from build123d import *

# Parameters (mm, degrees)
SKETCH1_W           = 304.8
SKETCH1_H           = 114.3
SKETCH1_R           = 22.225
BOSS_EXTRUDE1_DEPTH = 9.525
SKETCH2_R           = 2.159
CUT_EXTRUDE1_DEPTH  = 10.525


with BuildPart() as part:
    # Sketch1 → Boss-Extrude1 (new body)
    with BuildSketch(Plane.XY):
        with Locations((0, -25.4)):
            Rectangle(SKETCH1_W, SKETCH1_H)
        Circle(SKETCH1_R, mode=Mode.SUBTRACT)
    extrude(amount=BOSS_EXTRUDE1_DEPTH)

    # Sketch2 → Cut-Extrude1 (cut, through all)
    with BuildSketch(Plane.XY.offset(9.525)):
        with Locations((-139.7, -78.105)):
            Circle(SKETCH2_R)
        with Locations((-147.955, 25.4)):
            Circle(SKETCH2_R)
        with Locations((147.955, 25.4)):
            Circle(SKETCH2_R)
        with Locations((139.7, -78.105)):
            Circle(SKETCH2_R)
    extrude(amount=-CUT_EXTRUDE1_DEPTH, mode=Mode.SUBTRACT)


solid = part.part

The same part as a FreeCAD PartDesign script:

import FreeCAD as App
import Part
import Sketcher
from FreeCAD import Vector
Q = App.Units.Quantity

doc = App.newDocument("Part")
body = doc.addObject("PartDesign::Body", "Body")

sketch1 = doc.addObject("Sketcher::SketchObject", "Sketch")
body.addObject(sketch1)
sketch1.AttachmentSupport = (doc.XY_Plane, [""])
sketch1.MapMode = "FlatFace"
sketch1.addGeometry(Part.LineSegment(Vector(-152, 32, 0), Vector(-152, -83, 0)), False)
sketch1.addGeometry(Part.LineSegment(Vector(-152, -83, 0), Vector(152, -83, 0)), False)
sketch1.addGeometry(Part.LineSegment(Vector(152, -83, 0), Vector(152, 32, 0)), False)
sketch1.addGeometry(Part.LineSegment(Vector(152, 32, 0), Vector(-152, 32, 0)), False)
sketch1.addGeometry(Part.Circle(Vector(0, 0, 0), Vector(0, 0, 1), 22), False)
sketch1.addConstraint(Sketcher.Constraint("Coincident", 0, 2, 1, 1))
sketch1.addConstraint(Sketcher.Constraint("Coincident", 1, 2, 2, 1))
sketch1.addConstraint(Sketcher.Constraint("Coincident", 2, 2, 3, 1))
sketch1.addConstraint(Sketcher.Constraint("Coincident", 3, 2, 0, 1))
sketch1.addConstraint(Sketcher.Constraint("Vertical", 0))
sketch1.addConstraint(Sketcher.Constraint("Horizontal", 1))
sketch1.addConstraint(Sketcher.Constraint("Vertical", 2))
sketch1.addConstraint(Sketcher.Constraint("Horizontal", 3))
sketch1.addConstraint(Sketcher.Constraint("Coincident", 4, 3, -1, 1))
sketch1.addConstraint(Sketcher.Constraint("Diameter", 4, Q("1.75 in")))
sketch1.addConstraint(Sketcher.Constraint("DistanceX", 1, 1, 1, 2, Q("12 in")))
sketch1.addConstraint(Sketcher.Constraint("DistanceY", 0, 2, 0, 1, Q("4.5 in")))
sketch1.addConstraint(Sketcher.Constraint("DistanceX", 0, 2, -1, 1, Q("6 in")))
sketch1.addConstraint(Sketcher.Constraint("DistanceY", 0, 2, -1, 1, Q("3.25 in")))
pad1 = doc.addObject("PartDesign::Pad", "Pad")
body.addObject(pad1)
pad1.Profile = sketch1
pad1.Length = Q("0.375 in")

sketch2 = doc.addObject("Sketcher::SketchObject", "Sketch001")
body.addObject(sketch2)
sketch2.AttachmentSupport = (doc.XY_Plane, [""])
sketch2.MapMode = "FlatFace"
sketch2.AttachmentOffset = App.Placement(Vector(0, 0, 0.375 * 25.4), App.Rotation())
sketch2.addGeometry(Part.Circle(Vector(-139.7, -78.1, 0), Vector(0, 0, 1), 2.2), False)
sketch2.addGeometry(Part.Circle(Vector(-148, 25.4, 0), Vector(0, 0, 1), 2.2), False)
sketch2.addGeometry(Part.Circle(Vector(148, 25.4, 0), Vector(0, 0, 1), 2.2), False)
sketch2.addGeometry(Part.Circle(Vector(139.7, -78.1, 0), Vector(0, 0, 1), 2.2), False)
sketch2.addConstraint(Sketcher.Constraint("Equal", 0, 1))
sketch2.addConstraint(Sketcher.Constraint("Equal", 1, 2))
sketch2.addConstraint(Sketcher.Constraint("Equal", 2, 3))
sketch2.addConstraint(Sketcher.Constraint("Symmetric", 1, 3, 2, 3, -2))
sketch2.addConstraint(Sketcher.Constraint("Symmetric", 0, 3, 3, 3, -2))
sketch2.addConstraint(Sketcher.Constraint("Diameter", 0, Q("0.17 in")))
sketch2.addConstraint(Sketcher.Constraint("DistanceY", -1, 1, 1, 3, Q("1 in")))
sketch2.addConstraint(Sketcher.Constraint("DistanceX", 0, 3, 3, 3, Q("11 in")))
sketch2.addConstraint(Sketcher.Constraint("DistanceX", 1, 3, 2, 3, Q("11.65 in")))
sketch2.addConstraint(Sketcher.Constraint("DistanceY", 0, 3, -1, 1, Q("3.075 in")))
pocket1 = doc.addObject("PartDesign::Pocket", "Pocket")
body.addObject(pocket1)
pocket1.Profile = sketch2
pocket1.Type = "ThroughAll"

doc.recompute()
